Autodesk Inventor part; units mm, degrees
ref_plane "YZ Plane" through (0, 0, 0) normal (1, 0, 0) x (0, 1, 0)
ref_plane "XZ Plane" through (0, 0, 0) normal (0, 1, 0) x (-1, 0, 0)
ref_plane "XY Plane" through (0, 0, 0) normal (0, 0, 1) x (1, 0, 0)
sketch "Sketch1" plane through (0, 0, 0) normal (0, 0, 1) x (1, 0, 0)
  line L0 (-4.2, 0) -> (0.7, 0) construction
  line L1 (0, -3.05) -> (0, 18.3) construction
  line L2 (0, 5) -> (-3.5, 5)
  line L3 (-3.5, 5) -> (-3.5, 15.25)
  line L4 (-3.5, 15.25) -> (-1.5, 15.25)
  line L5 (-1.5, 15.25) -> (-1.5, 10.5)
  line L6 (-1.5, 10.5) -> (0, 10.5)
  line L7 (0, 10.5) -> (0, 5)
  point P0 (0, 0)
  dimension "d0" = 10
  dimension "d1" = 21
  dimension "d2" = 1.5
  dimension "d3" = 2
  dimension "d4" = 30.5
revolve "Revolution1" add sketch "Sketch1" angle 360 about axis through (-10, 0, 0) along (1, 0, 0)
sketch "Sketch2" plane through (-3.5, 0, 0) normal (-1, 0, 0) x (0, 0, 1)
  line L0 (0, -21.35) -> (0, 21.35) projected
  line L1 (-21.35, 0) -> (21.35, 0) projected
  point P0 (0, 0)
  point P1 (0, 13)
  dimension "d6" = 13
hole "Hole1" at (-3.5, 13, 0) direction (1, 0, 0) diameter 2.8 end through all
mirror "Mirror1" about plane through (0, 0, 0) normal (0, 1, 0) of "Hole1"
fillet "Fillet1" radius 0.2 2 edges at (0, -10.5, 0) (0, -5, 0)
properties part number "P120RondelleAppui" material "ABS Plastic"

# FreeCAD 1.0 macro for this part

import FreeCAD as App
import Part
import Sketcher

V = App.Vector


def edges_at(feature, points):
    """Names of the edges that pass closest to the given points."""
    edges = feature.Shape.Edges
    near = lambda p: min(range(len(edges)), key=lambda i: edges[i].distToShape(Part.Vertex(*p))[0])
    return sorted({f"Edge{near(p) + 1}" for p in points})


def add_polygon(sketch, points):
    """Adds a closed chain of lines whose ends are joined by coincident constraints."""
    first, n = sketch.GeometryCount, len(points)
    for a, b in zip(points, points[1:] + points[:1]):
        sketch.addGeometry(Part.LineSegment(App.Vector(*a, 0), App.Vector(*b, 0)), False)
    for i in range(n):
        sketch.addConstraint(Sketcher.Constraint("Coincident", first + i, 2, first + (i + 1) % n, 1))

doc = App.newDocument("Part")
params = doc.addObject("Spreadsheet::Sheet", "Params")
for row, (alias, value) in enumerate([
    ("sketch1_width", "2 mm"),
    ("sketch1_width2", "1.5 mm"),
    ("sketch1_height", "5.5 mm"),
    ("sketch1_height2", "4.75 mm"),
    ("revolution_angle", "360 deg"),
    ("sketch2_diameter", "2.8 mm"),
    ("hole_diameter", "2.8 mm"),
    ("fillet_radius", "0.2 mm"),
], start=1):
    params.set(f"A{row}", alias)
    params.set(f"B{row}", "=" + value)
    params.setAlias(f"B{row}", alias)

body = doc.addObject("PartDesign::Body", "Body")

# Sketch on XY plane
sketch1 = doc.addObject("Sketcher::SketchObject", "Sketch")
body.addObject(sketch1)
sketch1.AttachmentSupport = (doc.XY_Plane, [""])
sketch1.MapMode = "FlatFace"
add_polygon(sketch1, [(-3.5, 5), (0, 5), (0, 10.5), (-1.5, 10.5), (-1.5, 15.2), (-3.5, 15.2)])  # lines 0-5
sketch1.addConstraint([
    Sketcher.Constraint("Horizontal", 0),
    Sketcher.Constraint("Vertical", 1),
    Sketcher.Constraint("Horizontal", 2),
    Sketcher.Constraint("Vertical", 3),
    Sketcher.Constraint("Horizontal", 4),
    Sketcher.Constraint("Vertical", 5),
    Sketcher.Constraint("PointOnObject", 0, 2, -2),
    Sketcher.Constraint("DistanceX", 4, 2, 4, 1, 2.0),
    Sketcher.Constraint("DistanceX", 2, 2, 2, 1, 1.5),
    Sketcher.Constraint("DistanceY", 1, 1, 1, 2, 5.5),
    Sketcher.Constraint("DistanceY", -1, 1, 0, 2, 5.0),
    Sketcher.Constraint("DistanceY", 3, 1, 3, 2, 4.75),
])
sketch1.setExpression("Constraints[13]", "Params.sketch1_width")
sketch1.setExpression("Constraints[14]", "Params.sketch1_width2")
sketch1.setExpression("Constraints[15]", "Params.sketch1_height")
sketch1.setExpression("Constraints[17]", "Params.sketch1_height2")
revolution = doc.addObject("PartDesign::Revolution", "Revolution")
body.addObject(revolution)
revolution.Profile = sketch1
revolution.ReferenceAxis = (sketch1, ["H_Axis"])
revolution.setExpression("Angle", "Params.revolution_angle")

# Sketch on YZ plane
sketch2 = doc.addObject("Sketcher::SketchObject", "Sketch001")
body.addObject(sketch2)
sketch2.AttachmentSupport = (doc.YZ_Plane, [""])
sketch2.MapMode = "FlatFace"
sketch2.AttachmentOffset = App.Placement(V(0, 0, -3.5), App.Rotation())
sketch2.addGeometry(Part.Circle(V(13, 0, 0), V(0, 0, 1), 1.4), False)
sketch2.addConstraint([
    Sketcher.Constraint("PointOnObject", 0, 3, -1),
    Sketcher.Constraint("Diameter", 0, 2.8),
    Sketcher.Constraint("DistanceX", -1, 1, 0, 3, 13.0),
])
sketch2.setExpression("Constraints[1]", "Params.sketch2_diameter")
doc.recompute()
hole = doc.addObject("PartDesign::Hole", "Hole")
body.addObject(hole)
hole.Profile = sketch2
hole.ThreadType = "None"
hole.setExpression("Diameter", "Params.hole_diameter")
hole.DepthType = "ThroughAll"
hole.Reversed = True
doc.recompute()

mirrored = doc.addObject("PartDesign::Mirrored", "Mirrored")
body.addObject(mirrored)
mirrored.Originals = [hole]
mirrored.MirrorPlane = (doc.XZ_Plane, [""])
body.Tip = mirrored
doc.recompute()

fillet = doc.addObject("PartDesign::Fillet", "Fillet")
body.addObject(fillet)
fillet.Base = (mirrored, edges_at(mirrored, [(0, -10.5, 0), (0, -5, 0)]))
fillet.setExpression("Radius", "Params.fillet_radius")

doc.recompute()
